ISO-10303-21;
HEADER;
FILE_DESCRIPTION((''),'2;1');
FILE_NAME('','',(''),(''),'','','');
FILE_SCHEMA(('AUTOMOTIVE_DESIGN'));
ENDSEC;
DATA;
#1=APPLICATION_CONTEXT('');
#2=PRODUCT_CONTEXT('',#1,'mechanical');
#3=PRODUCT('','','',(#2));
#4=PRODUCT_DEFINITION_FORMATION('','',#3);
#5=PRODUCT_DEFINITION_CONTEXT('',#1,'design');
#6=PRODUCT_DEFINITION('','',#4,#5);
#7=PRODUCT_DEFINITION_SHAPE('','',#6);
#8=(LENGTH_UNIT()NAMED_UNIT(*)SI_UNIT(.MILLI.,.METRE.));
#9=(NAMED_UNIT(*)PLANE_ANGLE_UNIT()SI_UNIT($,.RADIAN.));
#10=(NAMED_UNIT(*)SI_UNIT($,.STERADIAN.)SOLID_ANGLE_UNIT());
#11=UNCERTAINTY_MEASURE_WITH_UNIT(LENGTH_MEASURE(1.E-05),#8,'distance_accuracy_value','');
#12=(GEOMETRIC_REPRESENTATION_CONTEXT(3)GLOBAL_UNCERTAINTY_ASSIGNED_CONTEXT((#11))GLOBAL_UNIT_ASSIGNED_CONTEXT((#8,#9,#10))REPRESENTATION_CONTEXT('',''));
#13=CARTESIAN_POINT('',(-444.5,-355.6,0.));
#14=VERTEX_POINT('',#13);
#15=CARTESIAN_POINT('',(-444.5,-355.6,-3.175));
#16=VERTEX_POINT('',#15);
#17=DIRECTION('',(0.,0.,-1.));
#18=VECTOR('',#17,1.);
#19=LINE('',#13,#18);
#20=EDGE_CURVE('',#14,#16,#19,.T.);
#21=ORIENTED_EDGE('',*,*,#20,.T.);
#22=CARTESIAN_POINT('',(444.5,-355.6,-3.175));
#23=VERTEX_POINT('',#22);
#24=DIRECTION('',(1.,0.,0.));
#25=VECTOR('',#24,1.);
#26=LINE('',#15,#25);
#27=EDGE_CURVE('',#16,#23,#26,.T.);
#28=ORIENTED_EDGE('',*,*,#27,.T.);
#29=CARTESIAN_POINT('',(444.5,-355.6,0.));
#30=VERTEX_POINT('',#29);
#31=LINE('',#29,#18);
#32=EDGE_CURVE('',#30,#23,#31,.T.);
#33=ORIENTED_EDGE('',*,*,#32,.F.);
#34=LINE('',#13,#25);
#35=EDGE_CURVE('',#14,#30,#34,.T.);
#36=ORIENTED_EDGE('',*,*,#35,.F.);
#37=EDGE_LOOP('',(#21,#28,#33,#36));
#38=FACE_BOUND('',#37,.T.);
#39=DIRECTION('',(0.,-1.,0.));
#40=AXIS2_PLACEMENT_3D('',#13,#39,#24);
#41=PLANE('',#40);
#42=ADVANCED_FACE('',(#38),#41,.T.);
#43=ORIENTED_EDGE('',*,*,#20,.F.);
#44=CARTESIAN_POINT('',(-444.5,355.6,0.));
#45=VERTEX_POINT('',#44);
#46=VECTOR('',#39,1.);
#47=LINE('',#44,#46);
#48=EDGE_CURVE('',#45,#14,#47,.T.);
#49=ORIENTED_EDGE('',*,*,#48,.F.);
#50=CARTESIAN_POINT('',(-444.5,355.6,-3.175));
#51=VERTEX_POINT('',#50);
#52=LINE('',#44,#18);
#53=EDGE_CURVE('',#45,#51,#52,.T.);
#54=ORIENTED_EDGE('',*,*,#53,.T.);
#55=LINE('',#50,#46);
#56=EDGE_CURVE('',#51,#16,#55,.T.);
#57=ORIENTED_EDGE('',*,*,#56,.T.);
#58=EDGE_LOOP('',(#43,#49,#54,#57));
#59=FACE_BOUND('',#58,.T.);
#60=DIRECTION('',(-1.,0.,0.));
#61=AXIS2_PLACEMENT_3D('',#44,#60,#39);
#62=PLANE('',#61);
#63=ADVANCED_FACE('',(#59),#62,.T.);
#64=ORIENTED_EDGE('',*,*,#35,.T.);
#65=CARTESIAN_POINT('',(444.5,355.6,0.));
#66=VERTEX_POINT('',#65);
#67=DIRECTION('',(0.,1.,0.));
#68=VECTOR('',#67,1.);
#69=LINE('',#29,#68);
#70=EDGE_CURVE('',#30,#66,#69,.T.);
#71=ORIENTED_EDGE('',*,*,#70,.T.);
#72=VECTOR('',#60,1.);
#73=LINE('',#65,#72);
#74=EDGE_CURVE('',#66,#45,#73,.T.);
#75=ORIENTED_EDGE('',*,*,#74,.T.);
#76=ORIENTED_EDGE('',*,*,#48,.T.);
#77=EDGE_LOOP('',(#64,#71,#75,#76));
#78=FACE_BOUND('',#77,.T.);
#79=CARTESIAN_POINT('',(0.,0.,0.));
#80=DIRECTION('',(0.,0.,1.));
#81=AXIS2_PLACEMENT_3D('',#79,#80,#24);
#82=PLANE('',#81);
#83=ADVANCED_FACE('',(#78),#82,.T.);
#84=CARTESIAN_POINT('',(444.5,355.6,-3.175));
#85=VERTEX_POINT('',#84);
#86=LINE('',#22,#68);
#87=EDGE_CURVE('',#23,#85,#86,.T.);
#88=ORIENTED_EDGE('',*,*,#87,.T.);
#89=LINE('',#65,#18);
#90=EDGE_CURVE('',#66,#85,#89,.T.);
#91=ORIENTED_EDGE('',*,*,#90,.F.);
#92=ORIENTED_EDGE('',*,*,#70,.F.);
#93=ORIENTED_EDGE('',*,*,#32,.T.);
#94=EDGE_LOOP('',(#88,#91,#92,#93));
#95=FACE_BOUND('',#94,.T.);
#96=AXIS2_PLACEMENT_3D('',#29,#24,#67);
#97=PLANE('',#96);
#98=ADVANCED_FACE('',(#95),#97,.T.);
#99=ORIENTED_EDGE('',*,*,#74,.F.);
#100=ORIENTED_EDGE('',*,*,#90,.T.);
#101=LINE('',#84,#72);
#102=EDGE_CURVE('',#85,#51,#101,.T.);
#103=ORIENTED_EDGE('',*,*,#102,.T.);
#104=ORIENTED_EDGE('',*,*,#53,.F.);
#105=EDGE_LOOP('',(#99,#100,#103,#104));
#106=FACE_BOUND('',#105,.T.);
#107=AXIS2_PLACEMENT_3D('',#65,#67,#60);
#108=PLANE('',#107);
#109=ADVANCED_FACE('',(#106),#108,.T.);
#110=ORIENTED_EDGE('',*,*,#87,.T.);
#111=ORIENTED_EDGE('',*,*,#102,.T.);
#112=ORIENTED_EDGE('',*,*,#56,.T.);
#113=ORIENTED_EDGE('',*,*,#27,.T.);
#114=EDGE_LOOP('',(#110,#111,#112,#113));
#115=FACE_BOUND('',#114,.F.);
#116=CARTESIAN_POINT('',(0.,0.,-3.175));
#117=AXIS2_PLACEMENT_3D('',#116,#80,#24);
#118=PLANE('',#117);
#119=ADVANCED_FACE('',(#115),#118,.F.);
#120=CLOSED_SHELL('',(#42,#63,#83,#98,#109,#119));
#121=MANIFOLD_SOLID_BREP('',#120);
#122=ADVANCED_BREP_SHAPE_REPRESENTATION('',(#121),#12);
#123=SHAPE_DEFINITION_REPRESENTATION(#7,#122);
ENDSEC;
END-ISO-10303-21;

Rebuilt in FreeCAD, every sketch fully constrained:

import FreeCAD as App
import Part
import Sketcher
from FreeCAD import Vector
Q = App.Units.Quantity

doc = App.newDocument("Part")
body = doc.addObject("PartDesign::Body", "Body")

# Sketch on XY plane
sketch1 = doc.addObject("Sketcher::SketchObject", "Sketch")
body.addObject(sketch1)
sketch1.AttachmentSupport = (doc.XY_Plane, [""])
sketch1.MapMode = "FlatFace"
sketch1.addGeometry([
    Part.LineSegment(Vector(-444, 356, 0), Vector(-444, -356, 0)),
    Part.LineSegment(Vector(-444, -356, 0), Vector(444, -356, 0)),
    Part.LineSegment(Vector(444, -356, 0), Vector(444, 356, 0)),
    Part.LineSegment(Vector(444, 356, 0), Vector(-444, 356, 0)),
], False)
sketch1.addConstraint([
    Sketcher.Constraint("Coincident", 0, 2, 1, 1),
    Sketcher.Constraint("Coincident", 1, 2, 2, 1),
    Sketcher.Constraint("Coincident", 2, 2, 3, 1),
    Sketcher.Constraint("Coincident", 3, 2, 0, 1),
    Sketcher.Constraint("Vertical", 0),
    Sketcher.Constraint("Horizontal", 1),
    Sketcher.Constraint("Vertical", 2),
    Sketcher.Constraint("Horizontal", 3),
    Sketcher.Constraint("Symmetric", 0, 2, 2, 2, -1, 1),
    Sketcher.Constraint("DistanceX", 1, 1, 1, 2, Q("35 in")),
    Sketcher.Constraint("DistanceY", 0, 2, 0, 1, Q("28 in")),
])
pad1 = doc.addObject("PartDesign::Pad", "Pad")
body.addObject(pad1)
pad1.Profile = sketch1
pad1.Length = Q("0.125 in")
pad1.Reversed = True

doc.recompute()
